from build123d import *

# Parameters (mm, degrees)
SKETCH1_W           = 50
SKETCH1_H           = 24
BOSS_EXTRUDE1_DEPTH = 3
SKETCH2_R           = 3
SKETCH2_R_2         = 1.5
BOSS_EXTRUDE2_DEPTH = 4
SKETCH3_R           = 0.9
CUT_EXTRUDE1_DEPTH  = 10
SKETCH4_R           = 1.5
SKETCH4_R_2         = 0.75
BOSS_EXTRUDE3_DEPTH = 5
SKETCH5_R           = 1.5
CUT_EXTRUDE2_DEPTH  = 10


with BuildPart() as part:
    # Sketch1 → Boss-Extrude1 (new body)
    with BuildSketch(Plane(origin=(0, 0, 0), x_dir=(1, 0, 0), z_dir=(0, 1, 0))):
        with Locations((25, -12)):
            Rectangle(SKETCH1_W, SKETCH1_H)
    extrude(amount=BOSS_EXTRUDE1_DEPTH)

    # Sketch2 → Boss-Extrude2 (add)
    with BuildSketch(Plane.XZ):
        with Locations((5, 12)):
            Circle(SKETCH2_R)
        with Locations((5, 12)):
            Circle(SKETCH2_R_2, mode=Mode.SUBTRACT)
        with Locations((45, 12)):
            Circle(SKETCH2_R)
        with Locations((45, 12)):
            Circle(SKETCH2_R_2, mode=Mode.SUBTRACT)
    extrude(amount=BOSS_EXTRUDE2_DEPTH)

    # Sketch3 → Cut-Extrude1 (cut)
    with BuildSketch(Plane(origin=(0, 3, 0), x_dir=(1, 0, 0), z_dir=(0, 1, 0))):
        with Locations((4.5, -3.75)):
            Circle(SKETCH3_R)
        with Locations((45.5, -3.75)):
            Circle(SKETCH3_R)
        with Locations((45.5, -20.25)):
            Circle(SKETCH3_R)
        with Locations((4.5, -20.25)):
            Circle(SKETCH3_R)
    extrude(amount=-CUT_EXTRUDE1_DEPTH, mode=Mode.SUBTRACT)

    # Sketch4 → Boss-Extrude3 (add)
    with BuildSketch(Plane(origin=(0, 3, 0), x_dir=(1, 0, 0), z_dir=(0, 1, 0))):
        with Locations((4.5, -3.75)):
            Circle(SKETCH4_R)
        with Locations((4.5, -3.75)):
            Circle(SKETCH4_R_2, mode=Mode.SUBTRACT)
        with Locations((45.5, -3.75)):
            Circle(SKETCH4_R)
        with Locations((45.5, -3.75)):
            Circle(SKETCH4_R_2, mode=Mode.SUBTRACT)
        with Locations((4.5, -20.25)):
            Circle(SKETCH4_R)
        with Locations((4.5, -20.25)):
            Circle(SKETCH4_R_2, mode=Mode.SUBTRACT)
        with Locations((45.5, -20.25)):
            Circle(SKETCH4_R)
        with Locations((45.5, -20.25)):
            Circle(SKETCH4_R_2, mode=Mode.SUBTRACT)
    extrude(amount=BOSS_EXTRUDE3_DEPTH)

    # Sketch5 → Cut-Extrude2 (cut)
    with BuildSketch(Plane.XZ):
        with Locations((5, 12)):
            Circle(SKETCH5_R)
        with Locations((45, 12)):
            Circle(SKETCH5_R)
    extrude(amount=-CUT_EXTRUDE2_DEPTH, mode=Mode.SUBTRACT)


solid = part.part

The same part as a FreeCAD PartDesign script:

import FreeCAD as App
import Part
import Sketcher

V = App.Vector


def add_polygon(sketch, points):
    """Adds a closed chain of lines whose ends are joined by coincident constraints."""
    first, n = sketch.GeometryCount, len(points)
    for a, b in zip(points, points[1:] + points[:1]):
        sketch.addGeometry(Part.LineSegment(App.Vector(*a, 0), App.Vector(*b, 0)), False)
    for i in range(n):
        sketch.addConstraint(Sketcher.Constraint("Coincident", first + i, 2, first + (i + 1) % n, 1))

doc = App.newDocument("Part")
body = doc.addObject("PartDesign::Body", "Body")

sketch1 = doc.addObject("Sketcher::SketchObject", "Sketch")
body.addObject(sketch1)
sketch1.AttachmentSupport = (doc.XZ_Plane, [""])
sketch1.MapMode = "FlatFace"
add_polygon(sketch1, [(0, 0), (0, 24), (50, 24), (50, 0)])
sketch1.addConstraint(Sketcher.Constraint("Vertical", 0))
sketch1.addConstraint(Sketcher.Constraint("Horizontal", 1))
sketch1.addConstraint(Sketcher.Constraint("Vertical", 2))
sketch1.addConstraint(Sketcher.Constraint("Horizontal", 3))
sketch1.addConstraint(Sketcher.Constraint("Coincident", 3, 2, -1, 1))
sketch1.addConstraint(Sketcher.Constraint("DistanceX", 1, 1, 1, 2, 50.0))
sketch1.addConstraint(Sketcher.Constraint("DistanceY", 0, 1, 0, 2, 24.0))
pad1 = doc.addObject("PartDesign::Pad", "Pad")
body.addObject(pad1)
pad1.Profile = sketch1
pad1.Length = 3
pad1.Reversed = True

sketch2 = doc.addObject("Sketcher::SketchObject", "Sketch001")
body.addObject(sketch2)
sketch2.AttachmentSupport = (doc.XZ_Plane, [""])
sketch2.MapMode = "FlatFace"
sketch2.addGeometry(Part.Circle(V(5, 12, 0), V(0, 0, 1), 3), False)
sketch2.addGeometry(Part.Circle(V(5, 12, 0), V(0, 0, 1), 1.5), False)
sketch2.addGeometry(Part.Circle(V(45, 12, 0), V(0, 0, 1), 3), False)
sketch2.addGeometry(Part.Circle(V(45, 12, 0), V(0, 0, 1), 1.5), False)
sketch2.addConstraint(Sketcher.Constraint("Coincident", 1, 3, 0, 3))
sketch2.addConstraint(Sketcher.Constraint("Coincident", 3, 3, 2, 3))
sketch2.addConstraint(Sketcher.Constraint("Equal", 0, 2))
sketch2.addConstraint(Sketcher.Constraint("Equal", 1, 3))
sketch2.addConstraint(Sketcher.Constraint("Horizontal", 1, 3, 2, 3))
sketch2.addConstraint(Sketcher.Constraint("Diameter", 0, 6.0))
sketch2.addConstraint(Sketcher.Constraint("Diameter", 1, 3.0))
sketch2.addConstraint(Sketcher.Constraint("DistanceX", -1, 1, 0, 3, 5.0))
sketch2.addConstraint(Sketcher.Constraint("DistanceY", -1, 1, 0, 3, 12.0))
sketch2.addConstraint(Sketcher.Constraint("DistanceX", -1, 1, 2, 3, 45.0))
pad2 = doc.addObject("PartDesign::Pad", "Pad001")
body.addObject(pad2)
pad2.Profile = sketch2
pad2.Length = 4

sketch3 = doc.addObject("Sketcher::SketchObject", "Sketch002")
body.addObject(sketch3)
sketch3.AttachmentSupport = (doc.XZ_Plane, [""])
sketch3.MapMode = "FlatFace"
sketch3.AttachmentOffset = App.Placement(V(0, 0, -3), App.Rotation())
sketch3.addGeometry(Part.Circle(V(4.5, 3.75, 0), V(0, 0, 1), 0.9), False)
sketch3.addGeometry(Part.Circle(V(45.5, 3.75, 0), V(0, 0, 1), 0.9), False)
sketch3.addGeometry(Part.Circle(V(45.5, 20.25, 0), V(0, 0, 1), 0.9), False)
sketch3.addGeometry(Part.Circle(V(4.5, 20.25, 0), V(0, 0, 1), 0.9), False)
sketch3.addConstraint(Sketcher.Constraint("Equal", 0, 1))
sketch3.addConstraint(Sketcher.Constraint("Equal", 1, 2))
sketch3.addConstraint(Sketcher.Constraint("Equal", 2, 3))
sketch3.addConstraint(Sketcher.Constraint("Horizontal", 0, 3, 1, 3))
sketch3.addConstraint(Sketcher.Constraint("Horizontal", 2, 3, 3, 3))
sketch3.addConstraint(Sketcher.Constraint("Vertical", 1, 3, 2, 3))
sketch3.addConstraint(Sketcher.Constraint("Vertical", 0, 3, 3, 3))
sketch3.addConstraint(Sketcher.Constraint("Diameter", 0, 1.8))
sketch3.addConstraint(Sketcher.Constraint("DistanceX", 0, 3, 1, 3, 41.0))
sketch3.addConstraint(Sketcher.Constraint("DistanceX", -1, 1, 0, 3, 4.5))
sketch3.addConstraint(Sketcher.Constraint("DistanceY", 1, 3, 2, 3, 16.5))
sketch3.addConstraint(Sketcher.Constraint("DistanceY", -1, 1, 0, 3, 3.75))
pocket1 = doc.addObject("PartDesign::Pocket", "Pocket")
body.addObject(pocket1)
pocket1.Profile = sketch3
pocket1.Length = 10
pocket1.Reversed = True

sketch4 = doc.addObject("Sketcher::SketchObject", "Sketch003")
body.addObject(sketch4)
sketch4.AttachmentSupport = (doc.XZ_Plane, [""])
sketch4.MapMode = "FlatFace"
sketch4.AttachmentOffset = App.Placement(V(0, 0, -3), App.Rotation())
sketch4.addGeometry(Part.Circle(V(4.5, 3.75, 0), V(0, 0, 1), 1.5), False)
sketch4.addGeometry(Part.Circle(V(4.5, 3.75, 0), V(0, 0, 1), 0.75), False)
sketch4.addGeometry(Part.Circle(V(45.5, 3.75, 0), V(0, 0, 1), 1.5), False)
sketch4.addGeometry(Part.Circle(V(45.5, 3.75, 0), V(0, 0, 1), 0.75), False)
sketch4.addGeometry(Part.Circle(V(4.5, 20.25, 0), V(0, 0, 1), 1.5), False)
sketch4.addGeometry(Part.Circle(V(4.5, 20.25, 0), V(0, 0, 1), 0.75), False)
sketch4.addGeometry(Part.Circle(V(45.5, 20.25, 0), V(0, 0, 1), 1.5), False)
sketch4.addGeometry(Part.Circle(V(45.5, 20.25, 0), V(0, 0, 1), 0.75), False)
sketch4.addConstraint(Sketcher.Constraint("Coincident", 1, 3, 0, 3))
sketch4.addConstraint(Sketcher.Constraint("Coincident", 3, 3, 2, 3))
sketch4.addConstraint(Sketcher.Constraint("Coincident", 5, 3, 4, 3))
sketch4.addConstraint(Sketcher.Constraint("Coincident", 7, 3, 6, 3))
sketch4.addConstraint(Sketcher.Constraint("Equal", 0, 2))
sketch4.addConstraint(Sketcher.Constraint("Equal", 1, 3))
sketch4.addConstraint(Sketcher.Constraint("Equal", 2, 4))
sketch4.addConstraint(Sketcher.Constraint("Equal", 3, 5))
sketch4.addConstraint(Sketcher.Constraint("Equal", 4, 6))
sketch4.addConstraint(Sketcher.Constraint("Equal", 5, 7))
sketch4.addConstraint(Sketcher.Constraint("Horizontal", 1, 3, 2, 3))
sketch4.addConstraint(Sketcher.Constraint("Horizontal", 5, 3, 6, 3))
sketch4.addConstraint(Sketcher.Constraint("Vertical", 1, 3, 4, 3))
sketch4.addConstraint(Sketcher.Constraint("Vertical", 3, 3, 6, 3))
sketch4.addConstraint(Sketcher.Constraint("Diameter", 0, 3.0))
sketch4.addConstraint(Sketcher.Constraint("Diameter", 1, 1.5))
sketch4.addConstraint(Sketcher.Constraint("DistanceX", 0, 3, 2, 3, 41.0))
sketch4.addConstraint(Sketcher.Constraint("DistanceX", -1, 1, 0, 3, 4.5))
sketch4.addConstraint(Sketcher.Constraint("DistanceY", 0, 3, 4, 3, 16.5))
sketch4.addConstraint(Sketcher.Constraint("DistanceY", -1, 1, 0, 3, 3.75))
pad3 = doc.addObject("PartDesign::Pad", "Pad002")
body.addObject(pad3)
pad3.Profile = sketch4
pad3.Length = 5
pad3.Reversed = True

sketch5 = doc.addObject("Sketcher::SketchObject", "Sketch004")
body.addObject(sketch5)
sketch5.AttachmentSupport = (doc.XZ_Plane, [""])
sketch5.MapMode = "FlatFace"
sketch5.addGeometry(Part.Circle(V(5, 12, 0), V(0, 0, 1), 1.5), False)
sketch5.addGeometry(Part.Circle(V(45, 12, 0), V(0, 0, 1), 1.5), False)
sketch5.addConstraint(Sketcher.Constraint("Equal", 0, 1))
sketch5.addConstraint(Sketcher.Constraint("Horizontal", 0, 3, 1, 3))
sketch5.addConstraint(Sketcher.Constraint("Diameter", 0, 3.0))
sketch5.addConstraint(Sketcher.Constraint("DistanceX", -1, 1, 0, 3, 5.0))
sketch5.addConstraint(Sketcher.Constraint("DistanceY", -1, 1, 0, 3, 12.0))
sketch5.addConstraint(Sketcher.Constraint("DistanceX", -1, 1, 1, 3, 45.0))
pocket2 = doc.addObject("PartDesign::Pocket", "Pocket001")
body.addObject(pocket2)
pocket2.Profile = sketch5
pocket2.Length = 10

doc.recompute()
